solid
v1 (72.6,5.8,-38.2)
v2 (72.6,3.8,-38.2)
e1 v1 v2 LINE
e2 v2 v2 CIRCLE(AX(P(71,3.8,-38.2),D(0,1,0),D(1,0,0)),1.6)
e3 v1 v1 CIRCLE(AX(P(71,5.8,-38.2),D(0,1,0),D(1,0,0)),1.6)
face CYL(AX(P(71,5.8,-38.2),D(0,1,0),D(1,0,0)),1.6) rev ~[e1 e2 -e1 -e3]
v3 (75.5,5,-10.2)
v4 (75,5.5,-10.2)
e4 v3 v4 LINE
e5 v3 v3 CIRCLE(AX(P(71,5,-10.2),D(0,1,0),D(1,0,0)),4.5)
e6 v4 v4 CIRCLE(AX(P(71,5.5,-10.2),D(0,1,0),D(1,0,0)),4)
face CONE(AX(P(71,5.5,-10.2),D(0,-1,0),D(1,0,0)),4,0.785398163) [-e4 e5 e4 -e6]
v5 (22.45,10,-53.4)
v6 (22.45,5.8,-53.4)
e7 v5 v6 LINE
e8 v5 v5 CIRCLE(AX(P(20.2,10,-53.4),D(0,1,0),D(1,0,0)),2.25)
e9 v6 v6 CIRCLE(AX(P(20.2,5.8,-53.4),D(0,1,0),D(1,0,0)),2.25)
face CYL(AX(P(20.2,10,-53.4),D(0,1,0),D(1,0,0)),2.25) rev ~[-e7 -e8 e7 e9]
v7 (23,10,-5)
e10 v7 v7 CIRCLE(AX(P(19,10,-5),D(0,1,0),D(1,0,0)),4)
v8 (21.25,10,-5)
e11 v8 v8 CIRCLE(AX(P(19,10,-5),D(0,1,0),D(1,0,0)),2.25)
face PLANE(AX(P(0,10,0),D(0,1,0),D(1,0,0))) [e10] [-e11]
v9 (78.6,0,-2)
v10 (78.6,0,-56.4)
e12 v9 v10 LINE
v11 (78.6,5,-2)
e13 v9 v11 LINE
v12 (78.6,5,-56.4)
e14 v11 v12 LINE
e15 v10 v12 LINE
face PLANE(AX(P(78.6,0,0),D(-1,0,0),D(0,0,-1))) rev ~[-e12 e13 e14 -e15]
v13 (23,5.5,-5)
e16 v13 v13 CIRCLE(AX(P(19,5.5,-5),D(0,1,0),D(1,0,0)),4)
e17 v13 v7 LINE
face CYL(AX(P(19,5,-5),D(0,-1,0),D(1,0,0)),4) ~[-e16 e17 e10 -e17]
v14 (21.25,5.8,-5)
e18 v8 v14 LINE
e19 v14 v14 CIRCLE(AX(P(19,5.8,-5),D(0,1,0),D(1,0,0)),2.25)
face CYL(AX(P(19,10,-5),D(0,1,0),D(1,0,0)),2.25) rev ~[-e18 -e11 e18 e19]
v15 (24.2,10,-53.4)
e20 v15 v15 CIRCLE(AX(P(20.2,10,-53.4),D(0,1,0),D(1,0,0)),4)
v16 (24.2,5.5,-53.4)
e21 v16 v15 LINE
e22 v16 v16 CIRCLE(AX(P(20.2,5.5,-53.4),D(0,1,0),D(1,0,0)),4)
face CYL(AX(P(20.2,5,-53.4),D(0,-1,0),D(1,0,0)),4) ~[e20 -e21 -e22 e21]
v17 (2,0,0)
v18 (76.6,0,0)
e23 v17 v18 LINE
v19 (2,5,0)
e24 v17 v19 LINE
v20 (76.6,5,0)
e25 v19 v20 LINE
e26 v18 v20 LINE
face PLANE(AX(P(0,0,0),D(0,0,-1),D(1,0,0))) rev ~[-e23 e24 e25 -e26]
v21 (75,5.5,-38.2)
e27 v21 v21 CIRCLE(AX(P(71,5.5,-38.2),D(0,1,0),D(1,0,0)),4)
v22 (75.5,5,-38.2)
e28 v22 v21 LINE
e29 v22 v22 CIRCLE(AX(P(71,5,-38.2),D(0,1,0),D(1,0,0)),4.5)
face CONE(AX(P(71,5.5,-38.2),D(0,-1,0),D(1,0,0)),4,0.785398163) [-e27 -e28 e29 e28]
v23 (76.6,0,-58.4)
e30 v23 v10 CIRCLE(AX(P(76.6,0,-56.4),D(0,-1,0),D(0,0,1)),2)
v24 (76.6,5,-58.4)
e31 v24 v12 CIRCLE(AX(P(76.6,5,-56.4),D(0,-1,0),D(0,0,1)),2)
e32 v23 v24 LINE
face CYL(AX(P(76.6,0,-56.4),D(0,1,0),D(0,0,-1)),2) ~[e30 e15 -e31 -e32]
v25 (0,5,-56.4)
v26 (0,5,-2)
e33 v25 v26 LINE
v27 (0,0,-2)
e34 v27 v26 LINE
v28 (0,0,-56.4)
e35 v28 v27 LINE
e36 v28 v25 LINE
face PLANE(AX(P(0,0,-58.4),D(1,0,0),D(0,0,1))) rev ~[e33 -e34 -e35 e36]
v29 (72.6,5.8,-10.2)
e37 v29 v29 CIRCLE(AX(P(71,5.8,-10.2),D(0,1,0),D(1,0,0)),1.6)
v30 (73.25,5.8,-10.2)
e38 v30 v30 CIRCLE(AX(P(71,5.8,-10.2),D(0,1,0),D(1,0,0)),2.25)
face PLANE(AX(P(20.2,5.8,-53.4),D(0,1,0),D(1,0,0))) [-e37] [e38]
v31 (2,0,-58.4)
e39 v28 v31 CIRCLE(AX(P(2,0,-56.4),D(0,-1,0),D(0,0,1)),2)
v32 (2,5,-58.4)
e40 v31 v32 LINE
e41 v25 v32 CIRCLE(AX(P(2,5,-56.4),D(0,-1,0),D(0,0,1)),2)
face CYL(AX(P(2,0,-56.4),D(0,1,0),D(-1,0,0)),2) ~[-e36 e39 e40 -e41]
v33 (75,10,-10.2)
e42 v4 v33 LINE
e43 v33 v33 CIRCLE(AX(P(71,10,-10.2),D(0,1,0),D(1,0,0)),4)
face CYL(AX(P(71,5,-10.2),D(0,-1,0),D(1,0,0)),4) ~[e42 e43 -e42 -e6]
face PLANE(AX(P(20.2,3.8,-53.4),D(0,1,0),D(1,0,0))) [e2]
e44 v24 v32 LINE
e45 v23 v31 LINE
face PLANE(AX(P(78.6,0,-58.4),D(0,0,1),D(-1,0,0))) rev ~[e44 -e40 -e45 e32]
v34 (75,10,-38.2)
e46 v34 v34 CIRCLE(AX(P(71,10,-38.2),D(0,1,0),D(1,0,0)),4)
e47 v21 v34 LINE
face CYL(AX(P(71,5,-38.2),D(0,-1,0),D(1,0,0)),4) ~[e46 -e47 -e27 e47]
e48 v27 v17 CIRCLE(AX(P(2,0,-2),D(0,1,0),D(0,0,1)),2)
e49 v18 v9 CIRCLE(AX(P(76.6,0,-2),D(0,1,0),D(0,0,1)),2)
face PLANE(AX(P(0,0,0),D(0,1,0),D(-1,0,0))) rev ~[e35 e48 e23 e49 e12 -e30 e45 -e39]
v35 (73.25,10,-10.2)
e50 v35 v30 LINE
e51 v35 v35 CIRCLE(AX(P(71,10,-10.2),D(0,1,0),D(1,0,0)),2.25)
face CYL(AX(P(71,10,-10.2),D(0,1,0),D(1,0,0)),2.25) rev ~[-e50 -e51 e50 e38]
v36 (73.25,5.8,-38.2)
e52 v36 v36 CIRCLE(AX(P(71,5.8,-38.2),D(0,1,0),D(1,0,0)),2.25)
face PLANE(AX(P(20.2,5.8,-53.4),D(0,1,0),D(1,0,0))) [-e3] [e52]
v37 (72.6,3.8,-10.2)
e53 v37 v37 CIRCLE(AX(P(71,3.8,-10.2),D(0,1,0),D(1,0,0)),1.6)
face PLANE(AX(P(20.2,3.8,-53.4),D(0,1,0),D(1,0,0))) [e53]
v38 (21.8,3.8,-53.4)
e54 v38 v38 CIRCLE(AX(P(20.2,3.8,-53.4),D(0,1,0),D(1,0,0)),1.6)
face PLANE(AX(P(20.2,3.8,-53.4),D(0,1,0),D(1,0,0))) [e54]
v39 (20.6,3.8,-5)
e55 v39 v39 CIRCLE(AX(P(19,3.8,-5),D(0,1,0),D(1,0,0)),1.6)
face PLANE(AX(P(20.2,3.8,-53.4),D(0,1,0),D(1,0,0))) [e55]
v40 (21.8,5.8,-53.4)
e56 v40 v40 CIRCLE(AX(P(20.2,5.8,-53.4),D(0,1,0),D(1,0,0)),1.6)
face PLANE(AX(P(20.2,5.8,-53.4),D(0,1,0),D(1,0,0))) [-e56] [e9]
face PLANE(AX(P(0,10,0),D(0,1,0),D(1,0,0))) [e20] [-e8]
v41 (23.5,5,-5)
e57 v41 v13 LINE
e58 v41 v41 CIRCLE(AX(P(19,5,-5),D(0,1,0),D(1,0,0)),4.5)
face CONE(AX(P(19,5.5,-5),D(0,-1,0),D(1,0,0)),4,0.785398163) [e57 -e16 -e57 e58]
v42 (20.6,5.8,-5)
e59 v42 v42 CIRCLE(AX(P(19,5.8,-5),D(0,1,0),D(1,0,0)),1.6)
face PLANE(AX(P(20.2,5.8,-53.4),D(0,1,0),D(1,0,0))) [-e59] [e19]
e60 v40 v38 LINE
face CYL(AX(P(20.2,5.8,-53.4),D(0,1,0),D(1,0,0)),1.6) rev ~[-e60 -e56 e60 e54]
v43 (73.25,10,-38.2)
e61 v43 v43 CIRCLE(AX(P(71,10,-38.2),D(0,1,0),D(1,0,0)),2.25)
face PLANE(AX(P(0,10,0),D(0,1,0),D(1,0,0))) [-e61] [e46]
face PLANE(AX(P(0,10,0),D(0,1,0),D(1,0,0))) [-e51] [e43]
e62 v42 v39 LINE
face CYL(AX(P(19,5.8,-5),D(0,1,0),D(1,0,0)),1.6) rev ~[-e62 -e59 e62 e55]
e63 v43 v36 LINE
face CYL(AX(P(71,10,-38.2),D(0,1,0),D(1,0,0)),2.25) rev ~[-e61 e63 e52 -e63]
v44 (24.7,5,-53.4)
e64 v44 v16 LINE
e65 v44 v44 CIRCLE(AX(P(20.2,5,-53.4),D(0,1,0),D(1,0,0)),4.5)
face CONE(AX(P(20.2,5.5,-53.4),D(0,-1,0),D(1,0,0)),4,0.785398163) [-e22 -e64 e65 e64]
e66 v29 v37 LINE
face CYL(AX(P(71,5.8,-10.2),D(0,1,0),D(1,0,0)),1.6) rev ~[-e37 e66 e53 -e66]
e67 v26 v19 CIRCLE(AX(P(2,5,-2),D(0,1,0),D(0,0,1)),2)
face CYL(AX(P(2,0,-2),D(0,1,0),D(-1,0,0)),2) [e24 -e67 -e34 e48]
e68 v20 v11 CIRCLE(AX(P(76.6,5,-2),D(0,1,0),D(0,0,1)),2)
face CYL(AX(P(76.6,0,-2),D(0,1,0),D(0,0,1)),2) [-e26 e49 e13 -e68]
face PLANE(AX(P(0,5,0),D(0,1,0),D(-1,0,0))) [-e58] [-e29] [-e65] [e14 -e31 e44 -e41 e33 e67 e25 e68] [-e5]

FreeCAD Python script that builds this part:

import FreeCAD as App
import Part
import Sketcher
Q = App.Units.Quantity


def edges_at(feature, points):
    """Names of the edges that pass closest to the given points."""
    edges = feature.Shape.Edges
    near = lambda p: min(range(len(edges)), key=lambda i: edges[i].distToShape(Part.Vertex(*p))[0])
    return sorted({f"Edge{near(p) + 1}" for p in points})

doc = App.newDocument("Part")
body = doc.addObject("PartDesign::Body", "Body")

# Sketch on XZ plane
sketch1 = doc.addObject("Sketcher::SketchObject", "Sketch")
body.addObject(sketch1)
sketch1.AttachmentSupport = (doc.XZ_Plane, [""])
sketch1.MapMode = "FlatFace"
sketch1.addGeometry(Part.LineSegment(App.Vector(0, -58, 0), App.Vector(0, 0, 0)), False)
sketch1.addGeometry(Part.LineSegment(App.Vector(0, 0, 0), App.Vector(79, 0, 0)), False)
sketch1.addGeometry(Part.LineSegment(App.Vector(79, 0, 0), App.Vector(79, -58, 0)), False)
sketch1.addGeometry(Part.LineSegment(App.Vector(79, -58, 0), App.Vector(0, -58, 0)), False)
sketch1.addConstraint(Sketcher.Constraint("Coincident", 0, 2, 1, 1))
sketch1.addConstraint(Sketcher.Constraint("Coincident", 1, 2, 2, 1))
sketch1.addConstraint(Sketcher.Constraint("Coincident", 2, 2, 3, 1))
sketch1.addConstraint(Sketcher.Constraint("Coincident", 3, 2, 0, 1))
sketch1.addConstraint(Sketcher.Constraint("Vertical", 0))
sketch1.addConstraint(Sketcher.Constraint("Horizontal", 1))
sketch1.addConstraint(Sketcher.Constraint("Vertical", 2))
sketch1.addConstraint(Sketcher.Constraint("Horizontal", 3))
sketch1.addConstraint(Sketcher.Constraint("Coincident", 0, 2, -1, 1))
sketch1.addConstraint(Sketcher.Constraint("DistanceX", 1, 1, 1, 2, Q("78.6 mm")))
sketch1.addConstraint(Sketcher.Constraint("DistanceY", 0, 1, 0, 2, Q("58.4 mm")))
pad1 = doc.addObject("PartDesign::Pad", "Pad")
body.addObject(pad1)
pad1.Profile = sketch1
pad1.Length = 5
pad1.Reversed = True

# Sketch on XZ plane
sketch2 = doc.addObject("Sketcher::SketchObject", "Sketch001")
body.addObject(sketch2)
sketch2.AttachmentSupport = (doc.XZ_Plane, [""])
sketch2.MapMode = "FlatFace"
sketch2.AttachmentOffset = App.Placement(App.Vector(0, 0, -5), App.Rotation())
sketch2.addGeometry(Part.Circle(App.Vector(19, -5, 0), App.Vector(0, 0, 1), 4), False)
sketch2.addGeometry(Part.Circle(App.Vector(20.2, -53.4, 0), App.Vector(0, 0, 1), 4), False)
sketch2.addGeometry(Part.Circle(App.Vector(71, -38.2, 0), App.Vector(0, 0, 1), 4), False)
sketch2.addGeometry(Part.Circle(App.Vector(71, -10.2, 0), App.Vector(0, 0, 1), 4), False)
sketch2.addConstraint(Sketcher.Constraint("Equal", 0, 1))
sketch2.addConstraint(Sketcher.Constraint("Equal", 1, 2))
sketch2.addConstraint(Sketcher.Constraint("Equal", 2, 3))
sketch2.addConstraint(Sketcher.Constraint("Vertical", 2, 3, 3, 3))
sketch2.addConstraint(Sketcher.Constraint("Diameter", 0, Q("8 mm")))
sketch2.addConstraint(Sketcher.Constraint("DistanceX", -1, 1, 0, 3, Q("19 mm")))
sketch2.addConstraint(Sketcher.Constraint("DistanceY", 0, 3, -1, 1, Q("5 mm")))
sketch2.addConstraint(Sketcher.Constraint("DistanceY", 2, 3, 3, 3, Q("28 mm")))
sketch2.addConstraint(Sketcher.Constraint("DistanceX", -1, 1, 1, 3, Q("20.2 mm")))
sketch2.addConstraint(Sketcher.Constraint("DistanceX", -1, 1, 2, 3, Q("71 mm")))
sketch2.addConstraint(Sketcher.Constraint("DistanceY", 1, 3, -1, 1, Q("53.4 mm")))
sketch2.addConstraint(Sketcher.Constraint("DistanceY", 2, 3, -1, 1, Q("38.2 mm")))
pad2 = doc.addObject("PartDesign::Pad", "Pad001")
body.addObject(pad2)
pad2.Profile = sketch2
pad2.Length = 5
pad2.Reversed = True

# Sketch on XZ plane
sketch3 = doc.addObject("Sketcher::SketchObject", "Sketch002")
body.addObject(sketch3)
sketch3.AttachmentSupport = (doc.XZ_Plane, [""])
sketch3.MapMode = "FlatFace"
sketch3.AttachmentOffset = App.Placement(App.Vector(0, 0, -10), App.Rotation())
sketch3.addGeometry(Part.Circle(App.Vector(20.2, -53.4, 0), App.Vector(0, 0, 1), 2.2), False)
sketch3.addGeometry(Part.Circle(App.Vector(71, -38.2, 0), App.Vector(0, 0, 1), 2.2), False)
sketch3.addGeometry(Part.Circle(App.Vector(19, -5, 0), App.Vector(0, 0, 1), 2.2), False)
sketch3.addGeometry(Part.Circle(App.Vector(71, -10.2, 0), App.Vector(0, 0, 1), 2.2), False)
sketch3.addConstraint(Sketcher.Constraint("Equal", 0, 1))
sketch3.addConstraint(Sketcher.Constraint("Equal", 1, 2))
sketch3.addConstraint(Sketcher.Constraint("Equal", 2, 3))
sketch3.addConstraint(Sketcher.Constraint("Vertical", 1, 3, 3, 3))
sketch3.addConstraint(Sketcher.Constraint("Diameter", 0, Q("4.5 mm")))
sketch3.addConstraint(Sketcher.Constraint("DistanceX", -1, 1, 1, 3, Q("71 mm")))
sketch3.addConstraint(Sketcher.Constraint("DistanceX", -1, 1, 2, 3, Q("19 mm")))
sketch3.addConstraint(Sketcher.Constraint("DistanceY", 2, 3, -1, 1, Q("5 mm")))
sketch3.addConstraint(Sketcher.Constraint("DistanceY", 1, 3, 3, 3, Q("28 mm")))
sketch3.addConstraint(Sketcher.Constraint("DistanceX", -1, 1, 0, 3, Q("20.2 mm")))
sketch3.addConstraint(Sketcher.Constraint("DistanceY", 0, 3, -1, 1, Q("53.4 mm")))
sketch3.addConstraint(Sketcher.Constraint("DistanceY", 1, 3, -1, 1, Q("38.2 mm")))
pocket1 = doc.addObject("PartDesign::Pocket", "Pocket")
body.addObject(pocket1)
pocket1.Profile = sketch3
pocket1.Length = 4.2
pocket1.Reversed = True

# Sketch on XZ plane
sketch4 = doc.addObject("Sketcher::SketchObject", "Sketch003")
body.addObject(sketch4)
sketch4.AttachmentSupport = (doc.XZ_Plane, [""])
sketch4.MapMode = "FlatFace"
sketch4.AttachmentOffset = App.Placement(App.Vector(0, 0, -5.8), App.Rotation())
sketch4.addGeometry(Part.Circle(App.Vector(20.2, -53.4, 0), App.Vector(0, 0, 1), 1.6), False)
sketch4.addGeometry(Part.Circle(App.Vector(71, -38.2, 0), App.Vector(0, 0, 1), 1.6), False)
sketch4.addGeometry(Part.Circle(App.Vector(71, -10.2, 0), App.Vector(0, 0, 1), 1.6), False)
sketch4.addGeometry(Part.Circle(App.Vector(19, -5, 0), App.Vector(0, 0, 1), 1.6), False)
sketch4.addConstraint(Sketcher.Constraint("Equal", 0, 1))
sketch4.addConstraint(Sketcher.Constraint("Equal", 1, 2))
sketch4.addConstraint(Sketcher.Constraint("Equal", 2, 3))
sketch4.addConstraint(Sketcher.Constraint("Vertical", 1, 3, 2, 3))
sketch4.addConstraint(Sketcher.Constraint("Diameter", 0, Q("3.2 mm")))
sketch4.addConstraint(Sketcher.Constraint("DistanceX", -1, 1, 1, 3, Q("71 mm")))
sketch4.addConstraint(Sketcher.Constraint("DistanceX", -1, 1, 3, 3, Q("19 mm")))
sketch4.addConstraint(Sketcher.Constraint("DistanceY", 3, 3, -1, 1, Q("5 mm")))
sketch4.addConstraint(Sketcher.Constraint("DistanceY", 1, 3, 2, 3, Q("28 mm")))
sketch4.addConstraint(Sketcher.Constraint("DistanceX", -1, 1, 0, 3, Q("20.2 mm")))
sketch4.addConstraint(Sketcher.Constraint("DistanceY", 0, 3, -1, 1, Q("53.4 mm")))
sketch4.addConstraint(Sketcher.Constraint("DistanceY", 1, 3, -1, 1, Q("38.2 mm")))
pocket2 = doc.addObject("PartDesign::Pocket", "Pocket001")
body.addObject(pocket2)
pocket2.Profile = sketch4
pocket2.Length = 2
pocket2.Reversed = True
doc.recompute()

chamfer = doc.addObject("PartDesign::Chamfer", "Chamfer")
body.addObject(chamfer)
chamfer.Base = (pocket2, edges_at(pocket2, [
    (16.2, 5, -53.4),
    (15, 5, -5),
    (67, 5, -10.2),
    (67, 5, -38.2),
]))
chamfer.Size = 0.5
doc.recompute()

fillet = doc.addObject("PartDesign::Fillet", "Fillet")
body.addObject(fillet)
fillet.Base = (chamfer, edges_at(chamfer, [
    (0, 2.5, -58.4),
    (0, 2.5, 0),
    (78.6, 2.5, 0),
    (78.6, 2.5, -58.4),
]))
fillet.Radius = 2

doc.recompute()
